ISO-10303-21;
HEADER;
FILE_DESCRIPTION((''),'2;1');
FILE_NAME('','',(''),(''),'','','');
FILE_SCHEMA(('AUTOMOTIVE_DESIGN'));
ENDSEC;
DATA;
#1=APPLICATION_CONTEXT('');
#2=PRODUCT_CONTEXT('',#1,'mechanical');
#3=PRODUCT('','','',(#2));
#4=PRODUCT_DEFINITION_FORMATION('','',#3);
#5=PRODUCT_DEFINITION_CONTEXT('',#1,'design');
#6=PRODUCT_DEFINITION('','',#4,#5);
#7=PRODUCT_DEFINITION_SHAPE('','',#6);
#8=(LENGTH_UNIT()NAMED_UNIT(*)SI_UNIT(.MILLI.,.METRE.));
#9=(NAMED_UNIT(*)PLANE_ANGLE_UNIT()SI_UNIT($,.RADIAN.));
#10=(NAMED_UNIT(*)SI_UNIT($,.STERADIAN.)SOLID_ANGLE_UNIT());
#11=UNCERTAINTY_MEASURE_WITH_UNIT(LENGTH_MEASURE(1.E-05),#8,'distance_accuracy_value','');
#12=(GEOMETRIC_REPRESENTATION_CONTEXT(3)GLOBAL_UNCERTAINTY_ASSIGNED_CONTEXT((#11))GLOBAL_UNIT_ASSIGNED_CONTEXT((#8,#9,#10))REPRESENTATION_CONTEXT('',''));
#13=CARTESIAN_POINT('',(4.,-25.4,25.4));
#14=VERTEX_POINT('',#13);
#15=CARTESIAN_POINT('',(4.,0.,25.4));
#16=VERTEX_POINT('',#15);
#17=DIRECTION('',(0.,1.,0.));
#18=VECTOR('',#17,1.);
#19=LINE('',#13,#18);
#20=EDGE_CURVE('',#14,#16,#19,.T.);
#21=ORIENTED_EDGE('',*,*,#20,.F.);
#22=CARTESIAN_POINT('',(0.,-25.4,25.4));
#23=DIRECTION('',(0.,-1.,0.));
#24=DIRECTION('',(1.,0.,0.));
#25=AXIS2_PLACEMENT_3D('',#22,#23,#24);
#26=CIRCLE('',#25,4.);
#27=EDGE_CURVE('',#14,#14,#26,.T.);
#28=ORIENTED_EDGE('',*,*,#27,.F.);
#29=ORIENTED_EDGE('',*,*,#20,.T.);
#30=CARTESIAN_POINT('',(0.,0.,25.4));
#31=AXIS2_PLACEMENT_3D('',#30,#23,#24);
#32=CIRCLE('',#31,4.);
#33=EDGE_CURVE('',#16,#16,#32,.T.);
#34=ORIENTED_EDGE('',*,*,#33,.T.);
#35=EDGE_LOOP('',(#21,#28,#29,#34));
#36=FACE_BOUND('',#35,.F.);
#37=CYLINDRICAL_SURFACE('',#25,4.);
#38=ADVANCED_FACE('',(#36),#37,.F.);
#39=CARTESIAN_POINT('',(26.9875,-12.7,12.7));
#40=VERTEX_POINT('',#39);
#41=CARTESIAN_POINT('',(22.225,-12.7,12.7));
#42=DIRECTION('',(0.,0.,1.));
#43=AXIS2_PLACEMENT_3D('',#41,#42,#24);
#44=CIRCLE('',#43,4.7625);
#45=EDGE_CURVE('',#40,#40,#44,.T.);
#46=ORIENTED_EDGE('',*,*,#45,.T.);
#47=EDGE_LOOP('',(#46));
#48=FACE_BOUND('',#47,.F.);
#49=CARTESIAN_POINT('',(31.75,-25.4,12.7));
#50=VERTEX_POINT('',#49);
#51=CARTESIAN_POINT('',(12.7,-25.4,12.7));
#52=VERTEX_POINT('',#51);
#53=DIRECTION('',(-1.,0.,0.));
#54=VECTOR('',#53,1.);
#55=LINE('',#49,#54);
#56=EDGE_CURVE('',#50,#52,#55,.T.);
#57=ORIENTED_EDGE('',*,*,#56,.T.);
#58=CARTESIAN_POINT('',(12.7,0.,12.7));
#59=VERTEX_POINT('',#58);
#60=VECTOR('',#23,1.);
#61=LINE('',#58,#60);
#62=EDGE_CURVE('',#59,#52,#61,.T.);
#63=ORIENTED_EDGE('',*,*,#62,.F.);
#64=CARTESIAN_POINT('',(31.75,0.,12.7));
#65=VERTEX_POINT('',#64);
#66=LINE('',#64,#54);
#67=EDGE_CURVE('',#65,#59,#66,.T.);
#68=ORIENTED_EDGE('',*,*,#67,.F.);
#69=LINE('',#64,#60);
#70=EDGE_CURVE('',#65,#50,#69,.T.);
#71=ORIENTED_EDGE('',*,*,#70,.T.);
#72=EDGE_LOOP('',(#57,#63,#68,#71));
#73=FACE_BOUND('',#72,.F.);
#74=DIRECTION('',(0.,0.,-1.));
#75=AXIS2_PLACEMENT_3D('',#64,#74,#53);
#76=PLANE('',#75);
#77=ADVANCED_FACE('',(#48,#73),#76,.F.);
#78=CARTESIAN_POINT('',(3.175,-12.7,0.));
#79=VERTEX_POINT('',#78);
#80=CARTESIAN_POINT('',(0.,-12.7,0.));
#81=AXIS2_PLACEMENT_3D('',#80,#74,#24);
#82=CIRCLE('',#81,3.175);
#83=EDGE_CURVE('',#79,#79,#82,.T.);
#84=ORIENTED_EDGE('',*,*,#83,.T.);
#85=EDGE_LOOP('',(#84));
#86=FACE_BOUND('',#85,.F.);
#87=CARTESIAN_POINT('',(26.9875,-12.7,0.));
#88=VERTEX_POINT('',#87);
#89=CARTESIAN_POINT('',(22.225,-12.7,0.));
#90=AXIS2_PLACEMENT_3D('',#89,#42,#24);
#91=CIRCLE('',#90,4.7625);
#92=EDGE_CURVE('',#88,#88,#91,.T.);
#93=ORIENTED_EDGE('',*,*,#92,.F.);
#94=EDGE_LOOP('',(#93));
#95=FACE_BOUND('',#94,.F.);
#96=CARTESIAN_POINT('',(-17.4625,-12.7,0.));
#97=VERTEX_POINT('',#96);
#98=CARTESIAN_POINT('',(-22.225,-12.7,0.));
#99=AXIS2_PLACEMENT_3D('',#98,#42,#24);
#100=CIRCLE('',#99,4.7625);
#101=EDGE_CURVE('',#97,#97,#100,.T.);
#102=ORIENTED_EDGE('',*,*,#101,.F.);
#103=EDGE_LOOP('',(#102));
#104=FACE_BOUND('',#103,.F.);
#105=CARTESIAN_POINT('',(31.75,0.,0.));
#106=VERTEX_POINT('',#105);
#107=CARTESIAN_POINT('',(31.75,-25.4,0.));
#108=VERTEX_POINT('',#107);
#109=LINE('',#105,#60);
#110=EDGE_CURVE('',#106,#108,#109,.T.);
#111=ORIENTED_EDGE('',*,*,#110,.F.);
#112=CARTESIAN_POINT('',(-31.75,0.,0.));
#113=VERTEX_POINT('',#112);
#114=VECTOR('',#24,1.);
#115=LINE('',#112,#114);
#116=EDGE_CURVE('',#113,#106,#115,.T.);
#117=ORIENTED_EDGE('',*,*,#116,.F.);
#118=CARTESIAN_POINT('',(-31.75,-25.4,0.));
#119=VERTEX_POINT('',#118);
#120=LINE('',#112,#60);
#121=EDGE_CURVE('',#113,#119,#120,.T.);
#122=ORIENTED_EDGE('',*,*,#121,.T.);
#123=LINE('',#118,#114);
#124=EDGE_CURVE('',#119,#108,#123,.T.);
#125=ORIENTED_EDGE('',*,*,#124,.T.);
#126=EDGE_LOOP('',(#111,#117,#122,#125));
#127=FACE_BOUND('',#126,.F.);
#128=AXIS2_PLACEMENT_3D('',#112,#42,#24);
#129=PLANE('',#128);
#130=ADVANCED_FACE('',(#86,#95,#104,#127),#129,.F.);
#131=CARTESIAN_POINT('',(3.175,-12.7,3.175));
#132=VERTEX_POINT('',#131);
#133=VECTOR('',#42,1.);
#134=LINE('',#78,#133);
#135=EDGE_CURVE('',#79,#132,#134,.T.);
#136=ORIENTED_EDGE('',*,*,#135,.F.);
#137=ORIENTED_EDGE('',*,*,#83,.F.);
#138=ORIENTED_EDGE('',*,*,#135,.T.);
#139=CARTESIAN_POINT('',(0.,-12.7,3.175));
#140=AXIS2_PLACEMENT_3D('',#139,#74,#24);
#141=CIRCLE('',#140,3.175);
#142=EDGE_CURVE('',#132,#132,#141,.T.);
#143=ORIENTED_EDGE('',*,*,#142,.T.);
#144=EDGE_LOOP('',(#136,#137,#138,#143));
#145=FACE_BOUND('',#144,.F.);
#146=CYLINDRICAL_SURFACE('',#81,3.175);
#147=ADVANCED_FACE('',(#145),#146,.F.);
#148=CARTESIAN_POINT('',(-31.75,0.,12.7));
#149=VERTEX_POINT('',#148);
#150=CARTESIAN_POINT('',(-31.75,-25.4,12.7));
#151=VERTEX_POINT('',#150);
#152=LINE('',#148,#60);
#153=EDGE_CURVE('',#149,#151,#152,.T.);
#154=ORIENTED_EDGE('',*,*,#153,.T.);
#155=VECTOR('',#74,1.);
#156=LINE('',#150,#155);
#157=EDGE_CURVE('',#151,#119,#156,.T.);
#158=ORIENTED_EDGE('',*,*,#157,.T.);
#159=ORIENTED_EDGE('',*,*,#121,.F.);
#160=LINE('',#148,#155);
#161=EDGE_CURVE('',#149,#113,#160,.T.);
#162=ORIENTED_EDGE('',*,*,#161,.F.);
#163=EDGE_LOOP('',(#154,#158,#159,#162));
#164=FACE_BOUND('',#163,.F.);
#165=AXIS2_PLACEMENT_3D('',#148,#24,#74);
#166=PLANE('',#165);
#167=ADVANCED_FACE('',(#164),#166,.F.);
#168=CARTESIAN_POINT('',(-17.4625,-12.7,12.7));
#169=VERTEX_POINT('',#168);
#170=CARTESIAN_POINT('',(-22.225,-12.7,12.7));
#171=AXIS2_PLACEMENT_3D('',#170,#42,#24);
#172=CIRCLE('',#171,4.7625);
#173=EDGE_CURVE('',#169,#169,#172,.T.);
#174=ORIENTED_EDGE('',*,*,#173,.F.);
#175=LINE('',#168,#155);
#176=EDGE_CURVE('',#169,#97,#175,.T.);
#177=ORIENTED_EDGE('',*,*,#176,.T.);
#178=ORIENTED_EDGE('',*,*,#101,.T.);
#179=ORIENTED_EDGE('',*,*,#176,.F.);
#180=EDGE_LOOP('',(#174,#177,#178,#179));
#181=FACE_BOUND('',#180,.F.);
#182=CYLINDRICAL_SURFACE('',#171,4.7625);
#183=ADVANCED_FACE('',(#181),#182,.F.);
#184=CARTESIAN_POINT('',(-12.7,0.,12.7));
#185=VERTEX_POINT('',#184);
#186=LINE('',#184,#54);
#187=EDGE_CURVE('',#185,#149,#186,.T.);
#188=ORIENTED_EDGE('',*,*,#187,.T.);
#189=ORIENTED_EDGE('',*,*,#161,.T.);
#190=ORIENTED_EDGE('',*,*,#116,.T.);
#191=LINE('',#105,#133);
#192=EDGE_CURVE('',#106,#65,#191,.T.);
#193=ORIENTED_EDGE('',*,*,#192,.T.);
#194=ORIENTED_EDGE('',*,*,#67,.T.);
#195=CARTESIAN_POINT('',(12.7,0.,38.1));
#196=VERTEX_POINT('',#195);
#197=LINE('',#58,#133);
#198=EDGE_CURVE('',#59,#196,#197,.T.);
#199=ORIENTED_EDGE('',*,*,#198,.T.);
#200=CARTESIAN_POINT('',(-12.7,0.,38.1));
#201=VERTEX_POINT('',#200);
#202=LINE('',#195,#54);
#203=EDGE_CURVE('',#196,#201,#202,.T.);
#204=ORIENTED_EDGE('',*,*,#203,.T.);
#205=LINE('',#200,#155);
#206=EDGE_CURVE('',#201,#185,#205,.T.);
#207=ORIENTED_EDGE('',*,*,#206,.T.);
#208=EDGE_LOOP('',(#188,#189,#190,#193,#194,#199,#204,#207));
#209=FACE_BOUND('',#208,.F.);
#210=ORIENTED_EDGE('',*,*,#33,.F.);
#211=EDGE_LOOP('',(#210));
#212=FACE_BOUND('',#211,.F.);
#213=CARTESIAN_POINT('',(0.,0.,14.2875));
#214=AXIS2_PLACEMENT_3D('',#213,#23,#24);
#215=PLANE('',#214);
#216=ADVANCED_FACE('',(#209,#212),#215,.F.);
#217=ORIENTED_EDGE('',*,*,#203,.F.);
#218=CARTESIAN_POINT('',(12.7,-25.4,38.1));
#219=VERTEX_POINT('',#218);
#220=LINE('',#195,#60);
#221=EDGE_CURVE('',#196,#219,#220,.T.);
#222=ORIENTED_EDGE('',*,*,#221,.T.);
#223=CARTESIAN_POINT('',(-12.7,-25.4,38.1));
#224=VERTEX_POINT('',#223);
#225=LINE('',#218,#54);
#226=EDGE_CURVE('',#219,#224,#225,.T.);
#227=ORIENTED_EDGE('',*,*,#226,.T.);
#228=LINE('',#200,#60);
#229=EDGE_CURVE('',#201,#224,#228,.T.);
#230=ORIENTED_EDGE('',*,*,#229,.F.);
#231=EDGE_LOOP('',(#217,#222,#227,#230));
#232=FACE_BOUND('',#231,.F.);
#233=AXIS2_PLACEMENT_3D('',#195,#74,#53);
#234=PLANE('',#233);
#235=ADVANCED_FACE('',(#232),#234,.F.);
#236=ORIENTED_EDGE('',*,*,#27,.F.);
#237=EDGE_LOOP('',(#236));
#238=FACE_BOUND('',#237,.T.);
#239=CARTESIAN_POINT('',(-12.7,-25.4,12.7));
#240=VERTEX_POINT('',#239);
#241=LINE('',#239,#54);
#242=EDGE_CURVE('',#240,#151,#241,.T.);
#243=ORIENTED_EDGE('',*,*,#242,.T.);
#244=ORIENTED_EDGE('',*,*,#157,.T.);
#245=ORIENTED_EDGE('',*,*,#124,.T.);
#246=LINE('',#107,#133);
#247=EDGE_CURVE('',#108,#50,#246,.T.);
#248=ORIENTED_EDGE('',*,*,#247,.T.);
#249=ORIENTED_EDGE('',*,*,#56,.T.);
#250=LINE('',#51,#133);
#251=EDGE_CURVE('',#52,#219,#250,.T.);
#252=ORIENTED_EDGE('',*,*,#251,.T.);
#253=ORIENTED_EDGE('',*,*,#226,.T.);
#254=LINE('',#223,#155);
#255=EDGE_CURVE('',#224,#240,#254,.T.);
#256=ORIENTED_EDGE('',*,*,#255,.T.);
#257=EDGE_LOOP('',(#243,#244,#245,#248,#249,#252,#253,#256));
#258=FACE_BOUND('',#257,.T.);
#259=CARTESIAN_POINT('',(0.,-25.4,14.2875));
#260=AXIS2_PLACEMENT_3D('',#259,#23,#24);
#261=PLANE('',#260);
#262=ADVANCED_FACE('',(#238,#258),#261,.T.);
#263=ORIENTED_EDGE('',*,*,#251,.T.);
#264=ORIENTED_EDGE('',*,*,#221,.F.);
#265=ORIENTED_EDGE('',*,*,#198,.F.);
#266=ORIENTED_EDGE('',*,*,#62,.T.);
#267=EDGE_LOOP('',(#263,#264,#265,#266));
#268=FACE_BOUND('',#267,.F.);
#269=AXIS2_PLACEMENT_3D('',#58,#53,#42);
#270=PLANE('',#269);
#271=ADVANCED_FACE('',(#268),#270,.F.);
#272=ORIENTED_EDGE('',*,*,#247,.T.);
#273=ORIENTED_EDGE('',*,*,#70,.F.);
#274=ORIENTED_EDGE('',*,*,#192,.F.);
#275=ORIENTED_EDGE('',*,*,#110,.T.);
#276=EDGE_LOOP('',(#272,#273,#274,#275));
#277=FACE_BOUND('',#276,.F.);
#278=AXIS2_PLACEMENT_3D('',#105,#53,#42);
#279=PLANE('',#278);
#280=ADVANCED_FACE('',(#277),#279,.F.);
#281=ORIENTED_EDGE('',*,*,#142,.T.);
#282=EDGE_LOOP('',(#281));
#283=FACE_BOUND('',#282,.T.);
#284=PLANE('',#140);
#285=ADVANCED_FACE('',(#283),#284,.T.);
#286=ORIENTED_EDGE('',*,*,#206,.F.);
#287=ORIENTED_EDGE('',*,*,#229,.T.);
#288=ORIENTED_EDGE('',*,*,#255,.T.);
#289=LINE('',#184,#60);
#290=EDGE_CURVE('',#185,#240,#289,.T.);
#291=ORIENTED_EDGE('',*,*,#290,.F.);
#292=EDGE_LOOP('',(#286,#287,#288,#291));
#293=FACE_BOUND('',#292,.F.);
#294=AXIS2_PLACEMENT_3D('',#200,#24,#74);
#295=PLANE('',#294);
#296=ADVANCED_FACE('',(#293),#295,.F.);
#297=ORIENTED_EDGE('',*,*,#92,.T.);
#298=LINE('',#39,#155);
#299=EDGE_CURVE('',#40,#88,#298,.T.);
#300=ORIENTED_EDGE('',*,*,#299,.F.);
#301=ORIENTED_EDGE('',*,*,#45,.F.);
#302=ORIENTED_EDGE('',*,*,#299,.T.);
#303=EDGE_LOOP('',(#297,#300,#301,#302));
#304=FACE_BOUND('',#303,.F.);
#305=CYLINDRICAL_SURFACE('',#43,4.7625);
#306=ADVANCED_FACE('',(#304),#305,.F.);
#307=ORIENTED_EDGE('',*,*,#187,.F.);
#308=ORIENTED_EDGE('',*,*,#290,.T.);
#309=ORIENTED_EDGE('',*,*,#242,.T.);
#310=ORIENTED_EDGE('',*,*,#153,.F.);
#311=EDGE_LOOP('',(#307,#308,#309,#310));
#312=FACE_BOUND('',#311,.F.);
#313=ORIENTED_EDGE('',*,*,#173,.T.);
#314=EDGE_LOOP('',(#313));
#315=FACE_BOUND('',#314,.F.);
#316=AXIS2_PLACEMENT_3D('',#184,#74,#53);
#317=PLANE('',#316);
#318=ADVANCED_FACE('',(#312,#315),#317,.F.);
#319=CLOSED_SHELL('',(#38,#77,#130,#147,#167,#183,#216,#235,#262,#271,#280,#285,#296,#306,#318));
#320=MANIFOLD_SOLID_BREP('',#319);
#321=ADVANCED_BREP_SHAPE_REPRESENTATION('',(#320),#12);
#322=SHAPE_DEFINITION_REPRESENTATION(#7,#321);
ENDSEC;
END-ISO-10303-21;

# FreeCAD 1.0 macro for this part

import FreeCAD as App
import Part
import Sketcher
Q = App.Units.Quantity

doc = App.newDocument("Part")
body = doc.addObject("PartDesign::Body", "Body")

# Sketch on XZ plane
sketch1 = body.newObject("Sketcher::SketchObject", "Sketch")
sketch1.AttachmentSupport = (doc.getObject("XZ_Plane"), [""])
sketch1.MapMode = "FlatFace"
sketch1.addGeometry([
    Part.LineSegment(App.Vector(-31.75, 12.7, 0), App.Vector(-31.75, 0, 0)),  # 0
    Part.LineSegment(App.Vector(-31.75, 0, 0), App.Vector(31.75, 0, 0)),  # 1
    Part.LineSegment(App.Vector(31.75, 0, 0), App.Vector(31.75, 12.7, 0)),  # 2
    Part.LineSegment(App.Vector(31.75, 12.7, 0), App.Vector(12.7, 12.7, 0)),  # 3
    Part.LineSegment(App.Vector(12.7, 12.7, 0), App.Vector(12.7, 38.1, 0)),  # 4
    Part.LineSegment(App.Vector(12.7, 38.1, 0), App.Vector(-12.7, 38.1, 0)),  # 5
    Part.LineSegment(App.Vector(-12.7, 38.1, 0), App.Vector(-12.7, 12.7, 0)),  # 6
    Part.LineSegment(App.Vector(-12.7, 12.7, 0), App.Vector(-31.75, 12.7, 0)),  # 7
], False)
sketch1.addConstraint([
    Sketcher.Constraint("Coincident", 0, 2, 1, 1),
    Sketcher.Constraint("Coincident", 1, 2, 2, 1),
    Sketcher.Constraint("Coincident", 2, 2, 3, 1),
    Sketcher.Constraint("Coincident", 3, 2, 4, 1),
    Sketcher.Constraint("Coincident", 4, 2, 5, 1),
    Sketcher.Constraint("Coincident", 5, 2, 6, 1),
    Sketcher.Constraint("Coincident", 6, 2, 7, 1),
    Sketcher.Constraint("Coincident", 7, 2, 0, 1),
    Sketcher.Constraint("Vertical", 0),
    Sketcher.Constraint("Horizontal", 1),
    Sketcher.Constraint("Vertical", 2),
    Sketcher.Constraint("Horizontal", 3),
    Sketcher.Constraint("Vertical", 4),
    Sketcher.Constraint("Horizontal", 5),
    Sketcher.Constraint("Vertical", 6),
    Sketcher.Constraint("Horizontal", 7),
    Sketcher.Constraint("Symmetric", 0, 2, 1, 2, -1, 1),
    Sketcher.Constraint("Symmetric", 3, 2, 6, 2, -2),
    Sketcher.Constraint("Equal", 5, 4),
    Sketcher.Constraint("DistanceX", 5, 2, 5, 1, Q("1 in")),
    Sketcher.Constraint("DistanceX", 1, 1, 1, 2, Q("2.5 in")),
    Sketcher.Constraint("DistanceY", 0, 2, 0, 1, Q("0.5 in")),
])
pad1 = body.newObject("PartDesign::Pad", "Pad")
pad1.Profile = sketch1
pad1.Length = Q("1 in")

# Sketch on XY plane
sketch2 = body.newObject("Sketcher::SketchObject", "Sketch001")
sketch2.AttachmentSupport = (doc.getObject("XY_Plane"), [""])
sketch2.MapMode = "FlatFace"
sketch2.AttachmentOffset = App.Placement(App.Vector(0, 0, 0.5 * 25.4), App.Rotation())
sketch2.addGeometry(Part.Circle(App.Vector(-22.225, -12.7, 0), App.Vector(0, 0, 1), 4.7625), False)
sketch2.addConstraint([
    Sketcher.Constraint("Diameter", 0, Q("0.375 in")),
    Sketcher.Constraint("DistanceY", 0, 3, -1, 1, Q("0.5 in")),
    Sketcher.Constraint("DistanceX", 0, 3, -1, 1, Q("0.875 in")),
])
pocket1 = body.newObject("PartDesign::Pocket", "Pocket")
pocket1.Profile = sketch2
pocket1.Type = "ThroughAll"

# Sketch on XY plane
sketch3 = body.newObject("Sketcher::SketchObject", "Sketch002")
sketch3.AttachmentSupport = (doc.getObject("XY_Plane"), [""])
sketch3.MapMode = "FlatFace"
sketch3.AttachmentOffset = App.Placement(App.Vector(0, 0, 0.5 * 25.4), App.Rotation())
sketch3.addGeometry(Part.Circle(App.Vector(22.225, -12.7, 0), App.Vector(0, 0, 1), 4.7625), False)
sketch3.addConstraint([
    Sketcher.Constraint("Diameter", 0, Q("0.375 in")),
    Sketcher.Constraint("DistanceY", 0, 3, -1, 1, Q("0.5 in")),
    Sketcher.Constraint("DistanceX", -1, 1, 0, 3, Q("0.875 in")),
])
pocket2 = body.newObject("PartDesign::Pocket", "Pocket001")
pocket2.Profile = sketch3
pocket2.Type = "ThroughAll"

# Sketch on XZ plane
sketch4 = body.newObject("Sketcher::SketchObject", "Sketch003")
sketch4.AttachmentSupport = (doc.getObject("XZ_Plane"), [""])
sketch4.MapMode = "FlatFace"
sketch4.AttachmentOffset = App.Placement(App.Vector(0, 0, 1 * 25.4), App.Rotation())
sketch4.addGeometry(Part.Circle(App.Vector(0, 25.4, 0), App.Vector(0, 0, 1), 4), False)
sketch4.addConstraint([
    Sketcher.Constraint("PointOnObject", 0, 3, -2),
    Sketcher.Constraint("DistanceY", -1, 1, 0, 3, Q("1 in")),
    Sketcher.Constraint("Diameter", 0, Q("8 mm")),
])
pocket3 = body.newObject("PartDesign::Pocket", "Pocket002")
pocket3.Profile = sketch4
pocket3.Type = "ThroughAll"

# Sketch on XY plane
sketch5 = body.newObject("Sketcher::SketchObject", "Sketch004")
sketch5.AttachmentSupport = (doc.getObject("XY_Plane"), [""])
sketch5.MapMode = "FlatFace"
sketch5.addGeometry(Part.Circle(App.Vector(0, -12.7, 0), App.Vector(0, 0, 1), 3.175), False)
sketch5.addConstraint([
    Sketcher.Constraint("PointOnObject", 0, 3, -2),
    Sketcher.Constraint("Diameter", 0, Q("0.25 in")),
    Sketcher.Constraint("DistanceY", 0, 3, -1, 1, Q("0.5 in")),
])
pocket4 = body.newObject("PartDesign::Pocket", "Pocket003")
pocket4.Profile = sketch5
pocket4.Length = Q("0.125 in")
pocket4.Reversed = True

doc.recompute()
